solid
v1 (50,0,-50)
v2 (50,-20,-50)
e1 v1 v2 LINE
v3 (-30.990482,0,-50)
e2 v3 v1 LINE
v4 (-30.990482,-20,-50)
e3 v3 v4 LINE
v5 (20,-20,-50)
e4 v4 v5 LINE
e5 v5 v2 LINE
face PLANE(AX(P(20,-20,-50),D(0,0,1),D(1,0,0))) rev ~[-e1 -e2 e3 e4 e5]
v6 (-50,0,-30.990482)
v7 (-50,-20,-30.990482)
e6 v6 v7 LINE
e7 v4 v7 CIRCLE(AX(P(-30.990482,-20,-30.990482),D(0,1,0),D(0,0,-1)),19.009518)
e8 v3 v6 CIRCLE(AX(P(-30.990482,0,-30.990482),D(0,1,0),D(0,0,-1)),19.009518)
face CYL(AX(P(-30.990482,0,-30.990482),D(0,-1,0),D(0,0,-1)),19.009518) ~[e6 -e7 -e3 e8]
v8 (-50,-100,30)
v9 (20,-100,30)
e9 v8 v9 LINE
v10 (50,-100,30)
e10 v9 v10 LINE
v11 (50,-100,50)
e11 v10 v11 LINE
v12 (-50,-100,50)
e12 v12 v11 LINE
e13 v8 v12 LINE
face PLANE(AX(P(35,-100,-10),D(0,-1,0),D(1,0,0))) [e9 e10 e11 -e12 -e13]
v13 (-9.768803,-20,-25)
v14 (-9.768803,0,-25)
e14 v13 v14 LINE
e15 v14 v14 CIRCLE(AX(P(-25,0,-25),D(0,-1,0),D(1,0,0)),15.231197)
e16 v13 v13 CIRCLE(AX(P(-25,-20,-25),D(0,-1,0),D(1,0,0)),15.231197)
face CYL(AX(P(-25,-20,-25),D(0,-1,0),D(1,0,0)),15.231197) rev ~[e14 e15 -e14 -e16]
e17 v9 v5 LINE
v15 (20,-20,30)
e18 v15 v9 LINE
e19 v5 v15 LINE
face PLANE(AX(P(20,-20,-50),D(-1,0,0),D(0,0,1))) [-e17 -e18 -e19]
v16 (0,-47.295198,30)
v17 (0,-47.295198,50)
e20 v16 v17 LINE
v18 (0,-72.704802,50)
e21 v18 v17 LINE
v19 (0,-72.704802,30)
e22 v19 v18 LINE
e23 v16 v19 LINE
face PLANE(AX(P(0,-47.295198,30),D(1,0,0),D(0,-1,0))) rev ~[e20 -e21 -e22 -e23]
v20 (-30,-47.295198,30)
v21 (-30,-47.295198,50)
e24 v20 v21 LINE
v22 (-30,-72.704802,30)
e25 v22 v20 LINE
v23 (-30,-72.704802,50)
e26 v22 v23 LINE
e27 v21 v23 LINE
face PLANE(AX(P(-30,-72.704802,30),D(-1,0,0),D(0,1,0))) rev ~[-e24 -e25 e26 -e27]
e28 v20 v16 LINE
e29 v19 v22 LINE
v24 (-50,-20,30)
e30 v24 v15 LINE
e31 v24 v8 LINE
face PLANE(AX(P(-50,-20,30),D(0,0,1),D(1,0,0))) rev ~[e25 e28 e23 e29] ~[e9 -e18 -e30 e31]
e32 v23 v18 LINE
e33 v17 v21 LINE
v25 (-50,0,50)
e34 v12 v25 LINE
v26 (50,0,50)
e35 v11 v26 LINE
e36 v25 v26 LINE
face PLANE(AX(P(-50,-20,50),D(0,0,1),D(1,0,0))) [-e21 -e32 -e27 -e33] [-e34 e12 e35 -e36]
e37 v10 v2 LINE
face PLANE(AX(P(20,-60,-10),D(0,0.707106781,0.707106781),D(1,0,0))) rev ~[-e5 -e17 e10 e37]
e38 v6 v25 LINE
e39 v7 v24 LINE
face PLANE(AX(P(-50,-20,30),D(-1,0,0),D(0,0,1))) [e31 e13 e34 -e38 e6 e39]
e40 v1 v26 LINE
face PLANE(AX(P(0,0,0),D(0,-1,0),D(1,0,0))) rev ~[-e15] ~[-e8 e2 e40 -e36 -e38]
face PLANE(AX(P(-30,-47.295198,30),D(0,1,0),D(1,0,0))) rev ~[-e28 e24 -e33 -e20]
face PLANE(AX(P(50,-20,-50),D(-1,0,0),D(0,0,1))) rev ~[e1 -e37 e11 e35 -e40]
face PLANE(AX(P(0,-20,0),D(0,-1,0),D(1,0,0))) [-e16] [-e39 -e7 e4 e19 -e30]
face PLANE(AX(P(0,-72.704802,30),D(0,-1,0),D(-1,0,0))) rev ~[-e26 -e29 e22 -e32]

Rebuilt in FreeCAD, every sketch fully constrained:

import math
import FreeCAD as App
import Part
import Sketcher
from FreeCAD import Vector


def edges_at(feature, points):
    """Names of the edges that pass closest to the given points."""
    edges = feature.Shape.Edges
    near = lambda p: min(range(len(edges)), key=lambda i: edges[i].distToShape(Part.Vertex(*p))[0])
    return sorted({f"Edge{near(p) + 1}" for p in points})

doc = App.newDocument("Part")
params = doc.addObject("Spreadsheet::Sheet", "Params")
for row, (alias, value) in enumerate([
    ("sketch1_width", "100 mm"),
    ("pad1_length", "20 mm"),
    ("sketch2_width", "100 mm"),
    ("sketch2_height", "20 mm"),
    ("pad2_length", "80 mm"),
    ("sketch3_width", "30 mm"),
    ("sketch3_height", "80 mm"),
    ("pad3_length", "80 mm"),
    ("chamfer_size", "80 mm"),
    ("chamfer_size2", "80 mm"),
    ("sketch4_width", "30 mm"),
    ("pocket1_length", "127 mm"),
    ("sketch5_radius", "15 mm"),
    ("pocket2_length", "1143 mm"),
    ("pocket3_length", "254 mm"),
    ("fillet_radius", "19.009518 mm"),
], start=1):
    params.set(f"A{row}", alias)
    params.set(f"B{row}", "=" + value)
    params.setAlias(f"B{row}", alias)

body = doc.addObject("PartDesign::Body", "Body")

# Sketch on XZ plane
sketch1 = doc.addObject("Sketcher::SketchObject", "Sketch")
body.addObject(sketch1)
sketch1.AttachmentSupport = (doc.XZ_Plane, [""])
sketch1.MapMode = "FlatFace"
sketch1.addGeometry([
    Part.LineSegment(Vector(-50, 50, 0), Vector(-50, -50, 0)),
    Part.LineSegment(Vector(-50, -50, 0), Vector(50, -50, 0)),
    Part.LineSegment(Vector(50, -50, 0), Vector(50, 50, 0)),
    Part.LineSegment(Vector(50, 50, 0), Vector(-50, 50, 0)),
], False)
sketch1.addConstraint([
    Sketcher.Constraint("Coincident", 0, 2, 1, 1),
    Sketcher.Constraint("Coincident", 1, 2, 2, 1),
    Sketcher.Constraint("Coincident", 2, 2, 3, 1),
    Sketcher.Constraint("Coincident", 3, 2, 0, 1),
    Sketcher.Constraint("Vertical", 0),
    Sketcher.Constraint("Horizontal", 1),
    Sketcher.Constraint("Vertical", 2),
    Sketcher.Constraint("Horizontal", 3),
    Sketcher.Constraint("Symmetric", 0, 2, 2, 2, -1, 1),
    Sketcher.Constraint("Equal", 3, 0),
    Sketcher.Constraint("DistanceX", 1, 1, 1, 2, 100.0),
])
sketch1.setExpression("Constraints[10]", "Params.sketch1_width")
pad1 = doc.addObject("PartDesign::Pad", "Pad")
body.addObject(pad1)
pad1.Profile = sketch1
pad1.setExpression("Length", "Params.pad1_length")

# Sketch on XZ plane
sketch2 = doc.addObject("Sketcher::SketchObject", "Sketch001")
body.addObject(sketch2)
sketch2.AttachmentSupport = (doc.XZ_Plane, [""])
sketch2.MapMode = "FlatFace"
sketch2.AttachmentOffset = App.Placement(Vector(0, 0, 20), App.Rotation())
sketch2.addGeometry([
    Part.LineSegment(Vector(-50, 50, 0), Vector(-50, 30, 0)),
    Part.LineSegment(Vector(-50, 30, 0), Vector(50, 30, 0)),
    Part.LineSegment(Vector(50, 30, 0), Vector(50, 50, 0)),
    Part.LineSegment(Vector(50, 50, 0), Vector(-50, 50, 0)),
], False)
sketch2.addConstraint([
    Sketcher.Constraint("Coincident", 0, 2, 1, 1),
    Sketcher.Constraint("Coincident", 1, 2, 2, 1),
    Sketcher.Constraint("Coincident", 2, 2, 3, 1),
    Sketcher.Constraint("Coincident", 3, 2, 0, 1),
    Sketcher.Constraint("Vertical", 0),
    Sketcher.Constraint("Horizontal", 1),
    Sketcher.Constraint("Vertical", 2),
    Sketcher.Constraint("Horizontal", 3),
    Sketcher.Constraint("DistanceX", 1, 1, 1, 2, 100.0),
    Sketcher.Constraint("DistanceY", 0, 2, 0, 1, 20.0),
    Sketcher.Constraint("DistanceX", 0, 2, -1, 1, 50.0),
    Sketcher.Constraint("DistanceY", -1, 1, 0, 2, 30.0),
])
sketch2.setExpression("Constraints[8]", "Params.sketch2_width")
sketch2.setExpression("Constraints[9]", "Params.sketch2_height")
pad2 = doc.addObject("PartDesign::Pad", "Pad001")
body.addObject(pad2)
pad2.Profile = sketch2
pad2.setExpression("Length", "Params.pad2_length")

# Sketch on XZ plane
sketch3 = doc.addObject("Sketcher::SketchObject", "Sketch002")
body.addObject(sketch3)
sketch3.AttachmentSupport = (doc.XZ_Plane, [""])
sketch3.MapMode = "FlatFace"
sketch3.AttachmentOffset = App.Placement(Vector(0, 0, 20), App.Rotation())
sketch3.addGeometry([
    Part.LineSegment(Vector(20, 30, 0), Vector(20, -50, 0)),
    Part.LineSegment(Vector(20, -50, 0), Vector(50, -50, 0)),
    Part.LineSegment(Vector(50, -50, 0), Vector(50, 30, 0)),
    Part.LineSegment(Vector(50, 30, 0), Vector(20, 30, 0)),
], False)
sketch3.addConstraint([
    Sketcher.Constraint("Coincident", 0, 2, 1, 1),
    Sketcher.Constraint("Coincident", 1, 2, 2, 1),
    Sketcher.Constraint("Coincident", 2, 2, 3, 1),
    Sketcher.Constraint("Coincident", 3, 2, 0, 1),
    Sketcher.Constraint("Vertical", 0),
    Sketcher.Constraint("Horizontal", 1),
    Sketcher.Constraint("Vertical", 2),
    Sketcher.Constraint("Horizontal", 3),
    Sketcher.Constraint("DistanceX", 1, 1, 1, 2, 30.0),
    Sketcher.Constraint("DistanceY", 0, 2, 0, 1, 80.0),
    Sketcher.Constraint("DistanceX", -1, 1, 0, 2, 20.0),
    Sketcher.Constraint("DistanceY", 0, 2, -1, 1, 50.0),
])
sketch3.setExpression("Constraints[8]", "Params.sketch3_width")
sketch3.setExpression("Constraints[9]", "Params.sketch3_height")
pad3 = doc.addObject("PartDesign::Pad", "Pad002")
body.addObject(pad3)
pad3.Profile = sketch3
pad3.setExpression("Length", "Params.pad3_length")
doc.recompute()

chamfer = doc.addObject("PartDesign::Chamfer", "Chamfer")
body.addObject(chamfer)
chamfer.Base = (pad3, edges_at(pad3, [(35, -100, -50)]))
chamfer.ChamferType = "Two distances"
chamfer.setExpression("Size", "Params.chamfer_size")
chamfer.setExpression("Size2", "Params.chamfer_size2")

# Sketch on XY plane
sketch4 = doc.addObject("Sketcher::SketchObject", "Sketch003")
body.addObject(sketch4)
sketch4.AttachmentSupport = (doc.XY_Plane, [""])
sketch4.MapMode = "FlatFace"
sketch4.AttachmentOffset = App.Placement(Vector(0, 0, 30), App.Rotation())
sketch4.addGeometry([
    Part.LineSegment(Vector(-30, -72.704802, 0), Vector(-30, -47.295198, 0)),
    Part.LineSegment(Vector(-30, -47.295198, 0), Vector(0, -47.295198, 0)),
    Part.LineSegment(Vector(0, -47.295198, 0), Vector(0, -72.704802, 0)),
    Part.LineSegment(Vector(0, -72.704802, 0), Vector(-30, -72.704802, 0)),
], False)
sketch4.addConstraint([
    Sketcher.Constraint("Coincident", 0, 2, 1, 1),
    Sketcher.Constraint("Coincident", 1, 2, 2, 1),
    Sketcher.Constraint("Coincident", 2, 2, 3, 1),
    Sketcher.Constraint("Coincident", 3, 2, 0, 1),
    Sketcher.Constraint("Vertical", 0),
    Sketcher.Constraint("Horizontal", 1),
    Sketcher.Constraint("Vertical", 2),
    Sketcher.Constraint("Horizontal", 3),
    Sketcher.Constraint("PointOnObject", 1, 2, -2),
    Sketcher.Constraint("DistanceX", 1, 1, 1, 2, 30.0),
    Sketcher.Constraint("DistanceY", 0, 1, 0, 2, 25.409604),
    Sketcher.Constraint("DistanceY", 0, 2, -1, 1, 47.295198),
])
sketch4.setExpression("Constraints[9]", "Params.sketch4_width")
pocket1 = doc.addObject("PartDesign::Pocket", "Pocket")
body.addObject(pocket1)
pocket1.Profile = sketch4
pocket1.setExpression("Length", "Params.pocket1_length")
pocket1.Reversed = True

# Sketch on XZ plane
sketch5 = doc.addObject("Sketcher::SketchObject", "Sketch004")
body.addObject(sketch5)
sketch5.AttachmentSupport = (doc.XZ_Plane, [""])
sketch5.MapMode = "FlatFace"
sketch5.AttachmentOffset = App.Placement(Vector(0, 0, 20), App.Rotation())
sketch5.addGeometry([
    Part.LineSegment(Vector(-25, -25, 0), Vector(-40, -25, 0)),
    Part.ArcOfCircle(Part.Circle(Vector(-25, -25, 0), Vector(0, 0, 1), 15), math.radians(180), math.radians(270)),
    Part.LineSegment(Vector(-25, -40, 0), Vector(-25, -25, 0)),
], False)
sketch5.addConstraint([
    Sketcher.Constraint("Coincident", 0, 2, 1, 1),
    Sketcher.Constraint("Coincident", 1, 2, 2, 1),
    Sketcher.Constraint("Coincident", 2, 2, 0, 1),
    Sketcher.Constraint("Horizontal", 0),
    Sketcher.Constraint("Vertical", 2),
    Sketcher.Constraint("Coincident", 2, 2, 1, 3),
    Sketcher.Constraint("Radius", 1, 15.0),
    Sketcher.Constraint("DistanceX", 1, 3, -1, 1, 25.0),
    Sketcher.Constraint("DistanceY", 1, 3, -1, 1, 25.0),
])
sketch5.setExpression("Constraints[6]", "Params.sketch5_radius")
pocket2 = doc.addObject("PartDesign::Pocket", "Pocket001")
body.addObject(pocket2)
pocket2.Profile = sketch5
pocket2.setExpression("Length", "Params.pocket2_length")

# Sketch on XZ plane
sketch6 = doc.addObject("Sketcher::SketchObject", "Sketch005")
body.addObject(sketch6)
sketch6.AttachmentSupport = (doc.XZ_Plane, [""])
sketch6.MapMode = "FlatFace"
sketch6.AttachmentOffset = App.Placement(Vector(0, 0, 20), App.Rotation())
sketch6.addGeometry(Part.Circle(Vector(-25, -25, 0), Vector(0, 0, 1), 15.231197), False)
sketch6.addConstraint([
    Sketcher.Constraint("DistanceX", 0, 3, -1, 1, 25.0),
    Sketcher.Constraint("DistanceY", 0, 3, -1, 1, 25.0),
    Sketcher.Constraint("Diameter", 0, 30.462393),
])
pocket3 = doc.addObject("PartDesign::Pocket", "Pocket002")
body.addObject(pocket3)
pocket3.Profile = sketch6
pocket3.setExpression("Length", "Params.pocket3_length")
doc.recompute()

fillet = doc.addObject("PartDesign::Fillet", "Fillet")
body.addObject(fillet)
fillet.Base = (pocket3, edges_at(pocket3, [(-50, -10, -50)]))
fillet.setExpression("Radius", "Params.fillet_radius")

doc.recompute()
